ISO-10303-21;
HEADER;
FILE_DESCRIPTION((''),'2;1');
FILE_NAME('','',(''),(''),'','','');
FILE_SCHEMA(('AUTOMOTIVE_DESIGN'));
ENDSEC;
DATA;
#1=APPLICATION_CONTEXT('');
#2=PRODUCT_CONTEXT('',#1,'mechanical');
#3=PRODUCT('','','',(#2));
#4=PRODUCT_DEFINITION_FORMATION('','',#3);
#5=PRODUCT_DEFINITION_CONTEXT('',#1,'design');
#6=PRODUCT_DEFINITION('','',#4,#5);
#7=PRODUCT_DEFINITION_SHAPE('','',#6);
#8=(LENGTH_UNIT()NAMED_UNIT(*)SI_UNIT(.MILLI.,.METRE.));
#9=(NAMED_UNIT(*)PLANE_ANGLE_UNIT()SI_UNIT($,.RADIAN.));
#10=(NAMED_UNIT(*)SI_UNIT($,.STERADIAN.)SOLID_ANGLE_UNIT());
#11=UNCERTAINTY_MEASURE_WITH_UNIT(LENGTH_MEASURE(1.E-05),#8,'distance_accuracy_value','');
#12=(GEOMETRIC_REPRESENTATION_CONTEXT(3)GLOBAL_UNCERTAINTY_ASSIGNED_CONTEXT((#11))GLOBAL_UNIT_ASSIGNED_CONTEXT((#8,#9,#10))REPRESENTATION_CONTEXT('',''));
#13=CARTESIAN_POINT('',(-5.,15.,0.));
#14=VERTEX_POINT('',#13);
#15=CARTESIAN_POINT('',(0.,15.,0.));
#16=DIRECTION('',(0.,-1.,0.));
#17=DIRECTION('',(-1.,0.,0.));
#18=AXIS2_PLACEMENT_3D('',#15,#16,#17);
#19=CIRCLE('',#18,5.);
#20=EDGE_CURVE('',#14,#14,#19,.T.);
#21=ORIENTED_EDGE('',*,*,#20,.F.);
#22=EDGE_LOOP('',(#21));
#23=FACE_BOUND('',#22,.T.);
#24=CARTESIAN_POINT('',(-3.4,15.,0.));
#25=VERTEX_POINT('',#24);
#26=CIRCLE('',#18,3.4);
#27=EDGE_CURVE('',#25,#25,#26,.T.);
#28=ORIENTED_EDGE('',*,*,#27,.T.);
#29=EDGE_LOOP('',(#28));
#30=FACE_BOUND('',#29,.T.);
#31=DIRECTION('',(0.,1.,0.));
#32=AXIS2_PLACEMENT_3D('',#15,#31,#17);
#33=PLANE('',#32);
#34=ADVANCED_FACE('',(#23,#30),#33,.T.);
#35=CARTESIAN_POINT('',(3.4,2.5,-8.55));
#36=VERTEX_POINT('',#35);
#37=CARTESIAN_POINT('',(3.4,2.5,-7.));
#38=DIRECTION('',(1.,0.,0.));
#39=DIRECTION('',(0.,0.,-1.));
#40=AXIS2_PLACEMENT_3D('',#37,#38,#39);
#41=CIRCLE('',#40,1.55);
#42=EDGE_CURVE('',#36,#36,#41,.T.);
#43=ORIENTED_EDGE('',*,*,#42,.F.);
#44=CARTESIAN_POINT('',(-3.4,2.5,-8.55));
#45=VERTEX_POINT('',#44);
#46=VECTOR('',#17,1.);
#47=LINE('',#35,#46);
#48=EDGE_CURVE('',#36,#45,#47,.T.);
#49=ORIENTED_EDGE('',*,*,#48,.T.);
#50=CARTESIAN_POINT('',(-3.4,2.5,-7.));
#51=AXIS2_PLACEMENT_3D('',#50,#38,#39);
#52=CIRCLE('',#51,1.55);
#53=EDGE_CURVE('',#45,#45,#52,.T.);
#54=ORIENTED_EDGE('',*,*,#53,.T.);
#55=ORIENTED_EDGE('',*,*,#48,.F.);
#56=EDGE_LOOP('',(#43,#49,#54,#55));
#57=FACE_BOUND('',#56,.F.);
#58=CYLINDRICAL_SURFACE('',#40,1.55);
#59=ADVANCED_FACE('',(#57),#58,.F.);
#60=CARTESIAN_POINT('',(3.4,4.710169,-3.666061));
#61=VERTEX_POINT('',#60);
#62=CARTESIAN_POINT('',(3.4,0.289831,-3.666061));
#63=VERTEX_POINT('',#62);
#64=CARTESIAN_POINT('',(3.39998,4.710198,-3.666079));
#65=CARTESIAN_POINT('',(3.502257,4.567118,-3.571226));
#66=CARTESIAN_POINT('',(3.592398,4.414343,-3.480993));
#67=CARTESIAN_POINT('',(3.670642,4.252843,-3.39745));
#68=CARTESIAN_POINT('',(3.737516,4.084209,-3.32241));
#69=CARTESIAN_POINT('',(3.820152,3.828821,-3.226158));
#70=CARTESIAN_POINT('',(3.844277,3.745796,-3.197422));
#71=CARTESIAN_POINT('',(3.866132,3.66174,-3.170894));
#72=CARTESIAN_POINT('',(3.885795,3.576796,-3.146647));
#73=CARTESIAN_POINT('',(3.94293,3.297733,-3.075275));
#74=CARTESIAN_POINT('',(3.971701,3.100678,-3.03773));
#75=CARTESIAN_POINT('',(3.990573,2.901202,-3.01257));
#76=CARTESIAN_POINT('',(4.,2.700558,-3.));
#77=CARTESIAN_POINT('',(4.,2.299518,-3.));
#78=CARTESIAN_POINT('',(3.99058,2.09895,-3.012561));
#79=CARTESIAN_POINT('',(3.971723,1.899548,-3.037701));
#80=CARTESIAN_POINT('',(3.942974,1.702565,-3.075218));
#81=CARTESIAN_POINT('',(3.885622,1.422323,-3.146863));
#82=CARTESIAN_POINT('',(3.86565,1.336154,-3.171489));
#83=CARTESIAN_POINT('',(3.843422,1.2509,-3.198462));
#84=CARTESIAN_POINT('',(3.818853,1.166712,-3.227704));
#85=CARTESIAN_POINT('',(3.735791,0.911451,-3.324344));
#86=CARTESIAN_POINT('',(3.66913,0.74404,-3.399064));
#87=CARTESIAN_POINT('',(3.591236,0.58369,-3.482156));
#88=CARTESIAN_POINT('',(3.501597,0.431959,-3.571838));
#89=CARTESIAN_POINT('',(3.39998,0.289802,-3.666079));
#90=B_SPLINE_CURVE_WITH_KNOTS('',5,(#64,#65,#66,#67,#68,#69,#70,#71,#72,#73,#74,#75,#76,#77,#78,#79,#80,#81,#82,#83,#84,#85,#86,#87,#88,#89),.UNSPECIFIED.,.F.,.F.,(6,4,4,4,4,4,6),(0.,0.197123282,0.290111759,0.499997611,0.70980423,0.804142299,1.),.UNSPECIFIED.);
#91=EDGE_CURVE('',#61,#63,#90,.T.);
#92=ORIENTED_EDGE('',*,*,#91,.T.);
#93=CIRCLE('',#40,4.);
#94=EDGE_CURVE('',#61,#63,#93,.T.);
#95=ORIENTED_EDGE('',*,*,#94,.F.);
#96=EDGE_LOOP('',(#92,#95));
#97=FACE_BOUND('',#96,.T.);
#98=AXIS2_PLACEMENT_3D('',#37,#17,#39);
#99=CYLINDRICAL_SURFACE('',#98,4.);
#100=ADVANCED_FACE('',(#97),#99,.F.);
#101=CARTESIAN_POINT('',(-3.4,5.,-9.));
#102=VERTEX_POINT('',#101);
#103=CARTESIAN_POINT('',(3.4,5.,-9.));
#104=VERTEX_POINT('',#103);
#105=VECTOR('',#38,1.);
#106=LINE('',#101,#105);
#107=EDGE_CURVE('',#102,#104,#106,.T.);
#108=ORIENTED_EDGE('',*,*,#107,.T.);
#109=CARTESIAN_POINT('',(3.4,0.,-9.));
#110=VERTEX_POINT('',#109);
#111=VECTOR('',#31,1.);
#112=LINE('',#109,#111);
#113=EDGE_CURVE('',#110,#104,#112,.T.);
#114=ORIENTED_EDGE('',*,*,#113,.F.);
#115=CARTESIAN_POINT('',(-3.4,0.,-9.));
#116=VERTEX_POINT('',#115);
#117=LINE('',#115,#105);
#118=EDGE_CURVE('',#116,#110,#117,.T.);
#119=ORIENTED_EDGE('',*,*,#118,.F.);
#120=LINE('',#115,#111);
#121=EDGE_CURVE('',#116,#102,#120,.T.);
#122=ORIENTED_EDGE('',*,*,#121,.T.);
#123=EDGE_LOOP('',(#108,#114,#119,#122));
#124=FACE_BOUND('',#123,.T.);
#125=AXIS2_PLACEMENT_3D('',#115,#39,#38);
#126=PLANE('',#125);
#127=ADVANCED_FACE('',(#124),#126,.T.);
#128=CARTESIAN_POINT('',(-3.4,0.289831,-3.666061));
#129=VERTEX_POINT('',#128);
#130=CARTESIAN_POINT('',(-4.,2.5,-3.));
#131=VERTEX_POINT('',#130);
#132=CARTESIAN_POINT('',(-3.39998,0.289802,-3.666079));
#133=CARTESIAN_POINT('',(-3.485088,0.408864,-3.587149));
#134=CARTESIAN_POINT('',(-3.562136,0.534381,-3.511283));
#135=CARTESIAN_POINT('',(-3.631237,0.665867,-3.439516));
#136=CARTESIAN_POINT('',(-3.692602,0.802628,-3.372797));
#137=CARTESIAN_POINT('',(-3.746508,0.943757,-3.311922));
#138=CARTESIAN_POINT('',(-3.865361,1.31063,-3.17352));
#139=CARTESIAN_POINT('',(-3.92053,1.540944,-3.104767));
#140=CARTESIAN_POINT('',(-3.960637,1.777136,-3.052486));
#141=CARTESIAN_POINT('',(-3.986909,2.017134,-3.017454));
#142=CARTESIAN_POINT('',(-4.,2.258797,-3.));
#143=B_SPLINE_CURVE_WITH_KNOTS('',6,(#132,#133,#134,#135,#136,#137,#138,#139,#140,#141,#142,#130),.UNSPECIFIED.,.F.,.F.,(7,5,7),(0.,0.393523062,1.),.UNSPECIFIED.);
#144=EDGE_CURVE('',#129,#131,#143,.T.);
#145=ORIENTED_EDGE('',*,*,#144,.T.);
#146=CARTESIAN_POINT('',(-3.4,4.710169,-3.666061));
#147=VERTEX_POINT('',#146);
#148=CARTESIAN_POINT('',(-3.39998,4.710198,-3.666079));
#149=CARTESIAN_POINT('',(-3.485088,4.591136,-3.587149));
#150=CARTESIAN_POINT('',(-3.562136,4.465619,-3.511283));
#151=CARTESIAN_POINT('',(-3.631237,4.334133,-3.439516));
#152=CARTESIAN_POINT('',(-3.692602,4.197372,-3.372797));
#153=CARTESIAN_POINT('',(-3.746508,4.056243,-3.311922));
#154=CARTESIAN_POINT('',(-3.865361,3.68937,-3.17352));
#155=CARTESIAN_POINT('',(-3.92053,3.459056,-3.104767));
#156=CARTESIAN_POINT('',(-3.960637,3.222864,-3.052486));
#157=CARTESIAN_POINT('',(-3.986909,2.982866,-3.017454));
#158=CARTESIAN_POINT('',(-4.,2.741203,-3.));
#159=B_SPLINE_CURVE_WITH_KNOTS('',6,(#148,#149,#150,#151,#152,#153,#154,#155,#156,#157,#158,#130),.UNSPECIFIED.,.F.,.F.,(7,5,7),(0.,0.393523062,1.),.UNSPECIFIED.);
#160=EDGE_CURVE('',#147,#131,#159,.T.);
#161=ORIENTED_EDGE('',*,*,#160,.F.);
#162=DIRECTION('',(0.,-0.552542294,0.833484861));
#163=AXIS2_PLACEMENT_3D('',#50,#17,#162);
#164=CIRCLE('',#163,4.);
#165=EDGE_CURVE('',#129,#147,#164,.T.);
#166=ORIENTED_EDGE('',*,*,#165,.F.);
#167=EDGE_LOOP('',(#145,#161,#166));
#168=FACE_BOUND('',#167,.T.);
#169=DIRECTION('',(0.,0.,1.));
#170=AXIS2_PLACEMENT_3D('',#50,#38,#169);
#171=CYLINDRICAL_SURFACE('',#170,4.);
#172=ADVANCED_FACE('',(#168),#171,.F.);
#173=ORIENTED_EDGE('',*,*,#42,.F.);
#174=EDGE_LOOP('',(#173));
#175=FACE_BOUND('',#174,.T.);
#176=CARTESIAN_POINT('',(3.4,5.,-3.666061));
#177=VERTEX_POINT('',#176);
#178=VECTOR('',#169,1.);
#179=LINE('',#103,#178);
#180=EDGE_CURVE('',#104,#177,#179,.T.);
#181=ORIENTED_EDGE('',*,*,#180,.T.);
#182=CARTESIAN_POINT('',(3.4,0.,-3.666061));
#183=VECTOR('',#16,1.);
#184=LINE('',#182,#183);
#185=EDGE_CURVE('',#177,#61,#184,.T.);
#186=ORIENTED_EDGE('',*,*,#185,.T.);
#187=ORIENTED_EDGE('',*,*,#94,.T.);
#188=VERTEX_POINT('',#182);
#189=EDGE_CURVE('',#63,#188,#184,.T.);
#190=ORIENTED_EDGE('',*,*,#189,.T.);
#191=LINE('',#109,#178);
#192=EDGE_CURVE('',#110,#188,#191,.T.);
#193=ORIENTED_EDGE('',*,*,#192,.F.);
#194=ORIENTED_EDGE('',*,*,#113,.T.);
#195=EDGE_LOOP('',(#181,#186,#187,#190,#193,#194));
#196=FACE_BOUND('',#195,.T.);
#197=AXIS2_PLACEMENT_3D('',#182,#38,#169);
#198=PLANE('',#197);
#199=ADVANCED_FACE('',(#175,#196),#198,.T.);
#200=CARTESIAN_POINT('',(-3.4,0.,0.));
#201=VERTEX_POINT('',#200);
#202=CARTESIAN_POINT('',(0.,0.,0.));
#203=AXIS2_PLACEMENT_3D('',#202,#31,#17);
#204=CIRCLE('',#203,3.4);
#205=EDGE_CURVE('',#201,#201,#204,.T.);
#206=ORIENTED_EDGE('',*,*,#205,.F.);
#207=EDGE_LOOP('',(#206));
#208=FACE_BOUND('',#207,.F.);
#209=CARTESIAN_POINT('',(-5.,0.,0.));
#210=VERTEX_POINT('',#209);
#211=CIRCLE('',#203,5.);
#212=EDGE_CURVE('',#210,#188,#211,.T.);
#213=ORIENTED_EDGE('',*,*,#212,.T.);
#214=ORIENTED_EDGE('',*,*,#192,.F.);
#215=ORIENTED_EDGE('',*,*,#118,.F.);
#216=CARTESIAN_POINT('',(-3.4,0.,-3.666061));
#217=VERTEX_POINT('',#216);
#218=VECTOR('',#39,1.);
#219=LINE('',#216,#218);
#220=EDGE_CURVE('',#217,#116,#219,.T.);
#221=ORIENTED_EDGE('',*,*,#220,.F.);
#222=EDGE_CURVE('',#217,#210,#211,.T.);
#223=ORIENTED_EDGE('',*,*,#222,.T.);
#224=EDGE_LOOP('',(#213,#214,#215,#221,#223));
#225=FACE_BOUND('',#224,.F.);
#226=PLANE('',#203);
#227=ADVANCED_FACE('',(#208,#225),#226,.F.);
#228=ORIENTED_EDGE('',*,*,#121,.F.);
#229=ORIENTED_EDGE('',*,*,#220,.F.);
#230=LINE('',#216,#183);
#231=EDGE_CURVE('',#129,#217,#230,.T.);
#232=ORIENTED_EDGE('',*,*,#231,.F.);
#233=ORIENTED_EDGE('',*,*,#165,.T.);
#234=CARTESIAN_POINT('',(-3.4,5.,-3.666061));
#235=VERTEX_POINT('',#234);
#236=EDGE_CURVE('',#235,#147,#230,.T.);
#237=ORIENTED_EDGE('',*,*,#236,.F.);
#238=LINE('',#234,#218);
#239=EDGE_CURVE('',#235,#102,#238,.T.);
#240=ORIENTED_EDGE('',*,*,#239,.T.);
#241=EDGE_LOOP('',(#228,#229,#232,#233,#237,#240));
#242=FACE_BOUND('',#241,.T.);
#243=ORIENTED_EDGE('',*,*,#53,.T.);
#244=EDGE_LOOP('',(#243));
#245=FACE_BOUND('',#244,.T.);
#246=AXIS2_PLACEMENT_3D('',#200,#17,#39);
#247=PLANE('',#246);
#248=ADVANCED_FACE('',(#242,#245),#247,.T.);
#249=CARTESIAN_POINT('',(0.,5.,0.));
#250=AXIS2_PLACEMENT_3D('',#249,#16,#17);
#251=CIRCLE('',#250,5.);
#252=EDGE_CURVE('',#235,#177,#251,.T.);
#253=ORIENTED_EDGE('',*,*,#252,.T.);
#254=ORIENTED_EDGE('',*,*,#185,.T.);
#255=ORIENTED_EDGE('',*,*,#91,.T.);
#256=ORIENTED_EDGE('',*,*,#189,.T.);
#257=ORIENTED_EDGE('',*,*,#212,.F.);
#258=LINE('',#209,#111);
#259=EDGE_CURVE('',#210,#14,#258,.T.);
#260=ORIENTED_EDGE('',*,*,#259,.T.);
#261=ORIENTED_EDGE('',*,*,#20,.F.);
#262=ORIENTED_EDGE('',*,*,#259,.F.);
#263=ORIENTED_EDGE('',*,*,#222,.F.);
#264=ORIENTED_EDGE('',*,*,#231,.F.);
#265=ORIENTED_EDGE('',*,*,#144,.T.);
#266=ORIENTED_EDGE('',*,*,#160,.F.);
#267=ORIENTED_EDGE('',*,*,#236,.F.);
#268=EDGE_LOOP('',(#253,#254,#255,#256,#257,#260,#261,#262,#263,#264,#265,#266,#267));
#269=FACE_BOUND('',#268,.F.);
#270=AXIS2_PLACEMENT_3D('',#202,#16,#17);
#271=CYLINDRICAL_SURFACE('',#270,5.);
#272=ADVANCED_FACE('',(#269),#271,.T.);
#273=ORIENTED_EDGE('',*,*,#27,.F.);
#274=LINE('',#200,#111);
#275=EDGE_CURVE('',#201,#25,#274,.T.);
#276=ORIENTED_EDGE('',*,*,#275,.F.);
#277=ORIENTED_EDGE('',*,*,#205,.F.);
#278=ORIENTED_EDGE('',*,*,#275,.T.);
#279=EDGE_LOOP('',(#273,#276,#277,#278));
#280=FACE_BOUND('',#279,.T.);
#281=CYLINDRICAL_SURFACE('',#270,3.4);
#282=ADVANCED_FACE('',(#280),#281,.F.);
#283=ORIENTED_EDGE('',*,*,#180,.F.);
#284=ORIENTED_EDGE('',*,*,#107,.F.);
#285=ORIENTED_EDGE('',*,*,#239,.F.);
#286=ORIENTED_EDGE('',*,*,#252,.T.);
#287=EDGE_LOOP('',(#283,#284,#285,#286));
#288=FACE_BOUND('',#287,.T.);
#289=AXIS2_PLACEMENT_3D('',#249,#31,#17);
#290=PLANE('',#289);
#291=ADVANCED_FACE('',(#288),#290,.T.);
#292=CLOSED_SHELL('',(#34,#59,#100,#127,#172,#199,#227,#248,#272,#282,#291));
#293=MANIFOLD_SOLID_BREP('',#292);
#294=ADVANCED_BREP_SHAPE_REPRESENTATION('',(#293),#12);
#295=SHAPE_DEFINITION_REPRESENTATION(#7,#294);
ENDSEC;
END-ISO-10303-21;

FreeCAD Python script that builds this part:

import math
import FreeCAD as App
import Part
import Sketcher
Q = App.Units.Quantity

doc = App.newDocument("Part")
body = doc.addObject("PartDesign::Body", "Body")

sketch1 = doc.addObject("Sketcher::SketchObject", "Sketch")
body.addObject(sketch1)
sketch1.AttachmentSupport = (doc.XZ_Plane, [""])
sketch1.MapMode = "FlatFace"
sketch1.addGeometry([
    Part.ArcOfCircle(Part.Circle(App.Vector(0, 0, 0), App.Vector(0, 0, 1), 3.4), math.radians(180), math.radians(360)),
    Part.LineSegment(App.Vector(3.4, 0, 0), App.Vector(3.4, -9, 0)),
    Part.LineSegment(App.Vector(3.4, -9, 0), App.Vector(-3.4, -9, 0)),
    Part.LineSegment(App.Vector(-3.4, -9, 0), App.Vector(-3.4, 0, 0)),
], False)
sketch1.addConstraint([
    Sketcher.Constraint("Tangent", 0, 2, 1, 1),
    Sketcher.Constraint("Coincident", 1, 2, 2, 1),
    Sketcher.Constraint("Coincident", 2, 2, 3, 1),
    Sketcher.Constraint("Tangent", 3, 2, 0, 1),
    Sketcher.Constraint("Vertical", 1),
    Sketcher.Constraint("Horizontal", 2),
    Sketcher.Constraint("Vertical", 3),
    Sketcher.Constraint("Coincident", 0, 3, -1, 1),
    Sketcher.Constraint("Radius", 0, Q("3.4 mm")),
    Sketcher.Constraint("DistanceY", 1, 2, 1, 1, Q("9 mm")),
])
pad1 = doc.addObject("PartDesign::Pad", "Pad")
body.addObject(pad1)
pad1.Profile = sketch1
pad1.Length = 5
pad1.Reversed = True

sketch2 = doc.addObject("Sketcher::SketchObject", "Sketch001")
body.addObject(sketch2)
sketch2.AttachmentSupport = (doc.XZ_Plane, [""])
sketch2.MapMode = "FlatFace"
sketch2.addGeometry([
    Part.Circle(App.Vector(0, 0, 0), App.Vector(0, 0, 1), 5),
    Part.Circle(App.Vector(0, 0, 0), App.Vector(0, 0, 1), 3.4),
], False)
sketch2.addConstraint([
    Sketcher.Constraint("Coincident", 0, 3, -1, 1),
    Sketcher.Constraint("Coincident", 1, 3, -1, 1),
    Sketcher.Constraint("Diameter", 0, Q("10 mm")),
    Sketcher.Constraint("Diameter", 1, Q("6.8 mm")),
])
pad2 = doc.addObject("PartDesign::Pad", "Pad001")
body.addObject(pad2)
pad2.Profile = sketch2
pad2.Length = 15
pad2.Reversed = True

sketch3 = doc.addObject("Sketcher::SketchObject", "Sketch002")
body.addObject(sketch3)
sketch3.AttachmentSupport = (doc.YZ_Plane, [""])
sketch3.MapMode = "FlatFace"
sketch3.AttachmentOffset = App.Placement(App.Vector(0, 0, 3.4), App.Rotation())
sketch3.addGeometry(Part.Circle(App.Vector(2.5, -7, 0), App.Vector(0, 0, 1), 1.6), False)
sketch3.addConstraint([
    Sketcher.Constraint("Diameter", 0, Q("3.1 mm")),
    Sketcher.Constraint("DistanceX", -1, 1, 0, 3, Q("2.5 mm")),
    Sketcher.Constraint("DistanceY", 0, 3, -1, 1, Q("7 mm")),
])
pocket1 = doc.addObject("PartDesign::Pocket", "Pocket")
body.addObject(pocket1)
pocket1.Profile = sketch3
pocket1.Length = 15

sketch4 = doc.addObject("Sketcher::SketchObject", "Sketch003")
body.addObject(sketch4)
sketch4.AttachmentSupport = (doc.YZ_Plane, [""])
sketch4.MapMode = "FlatFace"
sketch4.AttachmentOffset = App.Placement(App.Vector(0, 0, 3.4), App.Rotation())
sketch4.addGeometry([
    Part.Circle(App.Vector(2.5, -7, 0), App.Vector(0, 0, 1), 4),
    Part.Circle(App.Vector(2.5, -7, 0), App.Vector(0, 0, 1), 1.6),
], False)
sketch4.addConstraint([
    Sketcher.Constraint("Coincident", 1, 3, 0, 3),
    Sketcher.Constraint("Diameter", 0, Q("8 mm")),
    Sketcher.Constraint("Diameter", 1, Q("3.1 mm")),
    Sketcher.Constraint("DistanceX", -1, 1, 0, 3, Q("2.5 mm")),
    Sketcher.Constraint("DistanceY", 0, 3, -1, 1, Q("7 mm")),
])
pocket2 = doc.addObject("PartDesign::Pocket", "Pocket001")
body.addObject(pocket2)
pocket2.Profile = sketch4
pocket2.Length = 15
pocket2.Reversed = True

sketch5 = doc.addObject("Sketcher::SketchObject", "Sketch004")
body.addObject(sketch5)
sketch5.AttachmentSupport = (doc.YZ_Plane, [""])
sketch5.MapMode = "FlatFace"
sketch5.AttachmentOffset = App.Placement(App.Vector(0, 0, -3.4), App.Rotation())
sketch5.addGeometry(Part.Circle(App.Vector(2.5, -7, 0), App.Vector(0, 0, 1), 4), False)
sketch5.addConstraint([
    Sketcher.Constraint("Diameter", 0, Q("8 mm")),
    Sketcher.Constraint("DistanceX", -1, 1, 0, 3, Q("2.5 mm")),
    Sketcher.Constraint("DistanceY", 0, 3, -1, 1, Q("7 mm")),
])
pocket3 = doc.addObject("PartDesign::Pocket", "Pocket002")
body.addObject(pocket3)
pocket3.Profile = sketch5
pocket3.Length = 15

doc.recompute()
